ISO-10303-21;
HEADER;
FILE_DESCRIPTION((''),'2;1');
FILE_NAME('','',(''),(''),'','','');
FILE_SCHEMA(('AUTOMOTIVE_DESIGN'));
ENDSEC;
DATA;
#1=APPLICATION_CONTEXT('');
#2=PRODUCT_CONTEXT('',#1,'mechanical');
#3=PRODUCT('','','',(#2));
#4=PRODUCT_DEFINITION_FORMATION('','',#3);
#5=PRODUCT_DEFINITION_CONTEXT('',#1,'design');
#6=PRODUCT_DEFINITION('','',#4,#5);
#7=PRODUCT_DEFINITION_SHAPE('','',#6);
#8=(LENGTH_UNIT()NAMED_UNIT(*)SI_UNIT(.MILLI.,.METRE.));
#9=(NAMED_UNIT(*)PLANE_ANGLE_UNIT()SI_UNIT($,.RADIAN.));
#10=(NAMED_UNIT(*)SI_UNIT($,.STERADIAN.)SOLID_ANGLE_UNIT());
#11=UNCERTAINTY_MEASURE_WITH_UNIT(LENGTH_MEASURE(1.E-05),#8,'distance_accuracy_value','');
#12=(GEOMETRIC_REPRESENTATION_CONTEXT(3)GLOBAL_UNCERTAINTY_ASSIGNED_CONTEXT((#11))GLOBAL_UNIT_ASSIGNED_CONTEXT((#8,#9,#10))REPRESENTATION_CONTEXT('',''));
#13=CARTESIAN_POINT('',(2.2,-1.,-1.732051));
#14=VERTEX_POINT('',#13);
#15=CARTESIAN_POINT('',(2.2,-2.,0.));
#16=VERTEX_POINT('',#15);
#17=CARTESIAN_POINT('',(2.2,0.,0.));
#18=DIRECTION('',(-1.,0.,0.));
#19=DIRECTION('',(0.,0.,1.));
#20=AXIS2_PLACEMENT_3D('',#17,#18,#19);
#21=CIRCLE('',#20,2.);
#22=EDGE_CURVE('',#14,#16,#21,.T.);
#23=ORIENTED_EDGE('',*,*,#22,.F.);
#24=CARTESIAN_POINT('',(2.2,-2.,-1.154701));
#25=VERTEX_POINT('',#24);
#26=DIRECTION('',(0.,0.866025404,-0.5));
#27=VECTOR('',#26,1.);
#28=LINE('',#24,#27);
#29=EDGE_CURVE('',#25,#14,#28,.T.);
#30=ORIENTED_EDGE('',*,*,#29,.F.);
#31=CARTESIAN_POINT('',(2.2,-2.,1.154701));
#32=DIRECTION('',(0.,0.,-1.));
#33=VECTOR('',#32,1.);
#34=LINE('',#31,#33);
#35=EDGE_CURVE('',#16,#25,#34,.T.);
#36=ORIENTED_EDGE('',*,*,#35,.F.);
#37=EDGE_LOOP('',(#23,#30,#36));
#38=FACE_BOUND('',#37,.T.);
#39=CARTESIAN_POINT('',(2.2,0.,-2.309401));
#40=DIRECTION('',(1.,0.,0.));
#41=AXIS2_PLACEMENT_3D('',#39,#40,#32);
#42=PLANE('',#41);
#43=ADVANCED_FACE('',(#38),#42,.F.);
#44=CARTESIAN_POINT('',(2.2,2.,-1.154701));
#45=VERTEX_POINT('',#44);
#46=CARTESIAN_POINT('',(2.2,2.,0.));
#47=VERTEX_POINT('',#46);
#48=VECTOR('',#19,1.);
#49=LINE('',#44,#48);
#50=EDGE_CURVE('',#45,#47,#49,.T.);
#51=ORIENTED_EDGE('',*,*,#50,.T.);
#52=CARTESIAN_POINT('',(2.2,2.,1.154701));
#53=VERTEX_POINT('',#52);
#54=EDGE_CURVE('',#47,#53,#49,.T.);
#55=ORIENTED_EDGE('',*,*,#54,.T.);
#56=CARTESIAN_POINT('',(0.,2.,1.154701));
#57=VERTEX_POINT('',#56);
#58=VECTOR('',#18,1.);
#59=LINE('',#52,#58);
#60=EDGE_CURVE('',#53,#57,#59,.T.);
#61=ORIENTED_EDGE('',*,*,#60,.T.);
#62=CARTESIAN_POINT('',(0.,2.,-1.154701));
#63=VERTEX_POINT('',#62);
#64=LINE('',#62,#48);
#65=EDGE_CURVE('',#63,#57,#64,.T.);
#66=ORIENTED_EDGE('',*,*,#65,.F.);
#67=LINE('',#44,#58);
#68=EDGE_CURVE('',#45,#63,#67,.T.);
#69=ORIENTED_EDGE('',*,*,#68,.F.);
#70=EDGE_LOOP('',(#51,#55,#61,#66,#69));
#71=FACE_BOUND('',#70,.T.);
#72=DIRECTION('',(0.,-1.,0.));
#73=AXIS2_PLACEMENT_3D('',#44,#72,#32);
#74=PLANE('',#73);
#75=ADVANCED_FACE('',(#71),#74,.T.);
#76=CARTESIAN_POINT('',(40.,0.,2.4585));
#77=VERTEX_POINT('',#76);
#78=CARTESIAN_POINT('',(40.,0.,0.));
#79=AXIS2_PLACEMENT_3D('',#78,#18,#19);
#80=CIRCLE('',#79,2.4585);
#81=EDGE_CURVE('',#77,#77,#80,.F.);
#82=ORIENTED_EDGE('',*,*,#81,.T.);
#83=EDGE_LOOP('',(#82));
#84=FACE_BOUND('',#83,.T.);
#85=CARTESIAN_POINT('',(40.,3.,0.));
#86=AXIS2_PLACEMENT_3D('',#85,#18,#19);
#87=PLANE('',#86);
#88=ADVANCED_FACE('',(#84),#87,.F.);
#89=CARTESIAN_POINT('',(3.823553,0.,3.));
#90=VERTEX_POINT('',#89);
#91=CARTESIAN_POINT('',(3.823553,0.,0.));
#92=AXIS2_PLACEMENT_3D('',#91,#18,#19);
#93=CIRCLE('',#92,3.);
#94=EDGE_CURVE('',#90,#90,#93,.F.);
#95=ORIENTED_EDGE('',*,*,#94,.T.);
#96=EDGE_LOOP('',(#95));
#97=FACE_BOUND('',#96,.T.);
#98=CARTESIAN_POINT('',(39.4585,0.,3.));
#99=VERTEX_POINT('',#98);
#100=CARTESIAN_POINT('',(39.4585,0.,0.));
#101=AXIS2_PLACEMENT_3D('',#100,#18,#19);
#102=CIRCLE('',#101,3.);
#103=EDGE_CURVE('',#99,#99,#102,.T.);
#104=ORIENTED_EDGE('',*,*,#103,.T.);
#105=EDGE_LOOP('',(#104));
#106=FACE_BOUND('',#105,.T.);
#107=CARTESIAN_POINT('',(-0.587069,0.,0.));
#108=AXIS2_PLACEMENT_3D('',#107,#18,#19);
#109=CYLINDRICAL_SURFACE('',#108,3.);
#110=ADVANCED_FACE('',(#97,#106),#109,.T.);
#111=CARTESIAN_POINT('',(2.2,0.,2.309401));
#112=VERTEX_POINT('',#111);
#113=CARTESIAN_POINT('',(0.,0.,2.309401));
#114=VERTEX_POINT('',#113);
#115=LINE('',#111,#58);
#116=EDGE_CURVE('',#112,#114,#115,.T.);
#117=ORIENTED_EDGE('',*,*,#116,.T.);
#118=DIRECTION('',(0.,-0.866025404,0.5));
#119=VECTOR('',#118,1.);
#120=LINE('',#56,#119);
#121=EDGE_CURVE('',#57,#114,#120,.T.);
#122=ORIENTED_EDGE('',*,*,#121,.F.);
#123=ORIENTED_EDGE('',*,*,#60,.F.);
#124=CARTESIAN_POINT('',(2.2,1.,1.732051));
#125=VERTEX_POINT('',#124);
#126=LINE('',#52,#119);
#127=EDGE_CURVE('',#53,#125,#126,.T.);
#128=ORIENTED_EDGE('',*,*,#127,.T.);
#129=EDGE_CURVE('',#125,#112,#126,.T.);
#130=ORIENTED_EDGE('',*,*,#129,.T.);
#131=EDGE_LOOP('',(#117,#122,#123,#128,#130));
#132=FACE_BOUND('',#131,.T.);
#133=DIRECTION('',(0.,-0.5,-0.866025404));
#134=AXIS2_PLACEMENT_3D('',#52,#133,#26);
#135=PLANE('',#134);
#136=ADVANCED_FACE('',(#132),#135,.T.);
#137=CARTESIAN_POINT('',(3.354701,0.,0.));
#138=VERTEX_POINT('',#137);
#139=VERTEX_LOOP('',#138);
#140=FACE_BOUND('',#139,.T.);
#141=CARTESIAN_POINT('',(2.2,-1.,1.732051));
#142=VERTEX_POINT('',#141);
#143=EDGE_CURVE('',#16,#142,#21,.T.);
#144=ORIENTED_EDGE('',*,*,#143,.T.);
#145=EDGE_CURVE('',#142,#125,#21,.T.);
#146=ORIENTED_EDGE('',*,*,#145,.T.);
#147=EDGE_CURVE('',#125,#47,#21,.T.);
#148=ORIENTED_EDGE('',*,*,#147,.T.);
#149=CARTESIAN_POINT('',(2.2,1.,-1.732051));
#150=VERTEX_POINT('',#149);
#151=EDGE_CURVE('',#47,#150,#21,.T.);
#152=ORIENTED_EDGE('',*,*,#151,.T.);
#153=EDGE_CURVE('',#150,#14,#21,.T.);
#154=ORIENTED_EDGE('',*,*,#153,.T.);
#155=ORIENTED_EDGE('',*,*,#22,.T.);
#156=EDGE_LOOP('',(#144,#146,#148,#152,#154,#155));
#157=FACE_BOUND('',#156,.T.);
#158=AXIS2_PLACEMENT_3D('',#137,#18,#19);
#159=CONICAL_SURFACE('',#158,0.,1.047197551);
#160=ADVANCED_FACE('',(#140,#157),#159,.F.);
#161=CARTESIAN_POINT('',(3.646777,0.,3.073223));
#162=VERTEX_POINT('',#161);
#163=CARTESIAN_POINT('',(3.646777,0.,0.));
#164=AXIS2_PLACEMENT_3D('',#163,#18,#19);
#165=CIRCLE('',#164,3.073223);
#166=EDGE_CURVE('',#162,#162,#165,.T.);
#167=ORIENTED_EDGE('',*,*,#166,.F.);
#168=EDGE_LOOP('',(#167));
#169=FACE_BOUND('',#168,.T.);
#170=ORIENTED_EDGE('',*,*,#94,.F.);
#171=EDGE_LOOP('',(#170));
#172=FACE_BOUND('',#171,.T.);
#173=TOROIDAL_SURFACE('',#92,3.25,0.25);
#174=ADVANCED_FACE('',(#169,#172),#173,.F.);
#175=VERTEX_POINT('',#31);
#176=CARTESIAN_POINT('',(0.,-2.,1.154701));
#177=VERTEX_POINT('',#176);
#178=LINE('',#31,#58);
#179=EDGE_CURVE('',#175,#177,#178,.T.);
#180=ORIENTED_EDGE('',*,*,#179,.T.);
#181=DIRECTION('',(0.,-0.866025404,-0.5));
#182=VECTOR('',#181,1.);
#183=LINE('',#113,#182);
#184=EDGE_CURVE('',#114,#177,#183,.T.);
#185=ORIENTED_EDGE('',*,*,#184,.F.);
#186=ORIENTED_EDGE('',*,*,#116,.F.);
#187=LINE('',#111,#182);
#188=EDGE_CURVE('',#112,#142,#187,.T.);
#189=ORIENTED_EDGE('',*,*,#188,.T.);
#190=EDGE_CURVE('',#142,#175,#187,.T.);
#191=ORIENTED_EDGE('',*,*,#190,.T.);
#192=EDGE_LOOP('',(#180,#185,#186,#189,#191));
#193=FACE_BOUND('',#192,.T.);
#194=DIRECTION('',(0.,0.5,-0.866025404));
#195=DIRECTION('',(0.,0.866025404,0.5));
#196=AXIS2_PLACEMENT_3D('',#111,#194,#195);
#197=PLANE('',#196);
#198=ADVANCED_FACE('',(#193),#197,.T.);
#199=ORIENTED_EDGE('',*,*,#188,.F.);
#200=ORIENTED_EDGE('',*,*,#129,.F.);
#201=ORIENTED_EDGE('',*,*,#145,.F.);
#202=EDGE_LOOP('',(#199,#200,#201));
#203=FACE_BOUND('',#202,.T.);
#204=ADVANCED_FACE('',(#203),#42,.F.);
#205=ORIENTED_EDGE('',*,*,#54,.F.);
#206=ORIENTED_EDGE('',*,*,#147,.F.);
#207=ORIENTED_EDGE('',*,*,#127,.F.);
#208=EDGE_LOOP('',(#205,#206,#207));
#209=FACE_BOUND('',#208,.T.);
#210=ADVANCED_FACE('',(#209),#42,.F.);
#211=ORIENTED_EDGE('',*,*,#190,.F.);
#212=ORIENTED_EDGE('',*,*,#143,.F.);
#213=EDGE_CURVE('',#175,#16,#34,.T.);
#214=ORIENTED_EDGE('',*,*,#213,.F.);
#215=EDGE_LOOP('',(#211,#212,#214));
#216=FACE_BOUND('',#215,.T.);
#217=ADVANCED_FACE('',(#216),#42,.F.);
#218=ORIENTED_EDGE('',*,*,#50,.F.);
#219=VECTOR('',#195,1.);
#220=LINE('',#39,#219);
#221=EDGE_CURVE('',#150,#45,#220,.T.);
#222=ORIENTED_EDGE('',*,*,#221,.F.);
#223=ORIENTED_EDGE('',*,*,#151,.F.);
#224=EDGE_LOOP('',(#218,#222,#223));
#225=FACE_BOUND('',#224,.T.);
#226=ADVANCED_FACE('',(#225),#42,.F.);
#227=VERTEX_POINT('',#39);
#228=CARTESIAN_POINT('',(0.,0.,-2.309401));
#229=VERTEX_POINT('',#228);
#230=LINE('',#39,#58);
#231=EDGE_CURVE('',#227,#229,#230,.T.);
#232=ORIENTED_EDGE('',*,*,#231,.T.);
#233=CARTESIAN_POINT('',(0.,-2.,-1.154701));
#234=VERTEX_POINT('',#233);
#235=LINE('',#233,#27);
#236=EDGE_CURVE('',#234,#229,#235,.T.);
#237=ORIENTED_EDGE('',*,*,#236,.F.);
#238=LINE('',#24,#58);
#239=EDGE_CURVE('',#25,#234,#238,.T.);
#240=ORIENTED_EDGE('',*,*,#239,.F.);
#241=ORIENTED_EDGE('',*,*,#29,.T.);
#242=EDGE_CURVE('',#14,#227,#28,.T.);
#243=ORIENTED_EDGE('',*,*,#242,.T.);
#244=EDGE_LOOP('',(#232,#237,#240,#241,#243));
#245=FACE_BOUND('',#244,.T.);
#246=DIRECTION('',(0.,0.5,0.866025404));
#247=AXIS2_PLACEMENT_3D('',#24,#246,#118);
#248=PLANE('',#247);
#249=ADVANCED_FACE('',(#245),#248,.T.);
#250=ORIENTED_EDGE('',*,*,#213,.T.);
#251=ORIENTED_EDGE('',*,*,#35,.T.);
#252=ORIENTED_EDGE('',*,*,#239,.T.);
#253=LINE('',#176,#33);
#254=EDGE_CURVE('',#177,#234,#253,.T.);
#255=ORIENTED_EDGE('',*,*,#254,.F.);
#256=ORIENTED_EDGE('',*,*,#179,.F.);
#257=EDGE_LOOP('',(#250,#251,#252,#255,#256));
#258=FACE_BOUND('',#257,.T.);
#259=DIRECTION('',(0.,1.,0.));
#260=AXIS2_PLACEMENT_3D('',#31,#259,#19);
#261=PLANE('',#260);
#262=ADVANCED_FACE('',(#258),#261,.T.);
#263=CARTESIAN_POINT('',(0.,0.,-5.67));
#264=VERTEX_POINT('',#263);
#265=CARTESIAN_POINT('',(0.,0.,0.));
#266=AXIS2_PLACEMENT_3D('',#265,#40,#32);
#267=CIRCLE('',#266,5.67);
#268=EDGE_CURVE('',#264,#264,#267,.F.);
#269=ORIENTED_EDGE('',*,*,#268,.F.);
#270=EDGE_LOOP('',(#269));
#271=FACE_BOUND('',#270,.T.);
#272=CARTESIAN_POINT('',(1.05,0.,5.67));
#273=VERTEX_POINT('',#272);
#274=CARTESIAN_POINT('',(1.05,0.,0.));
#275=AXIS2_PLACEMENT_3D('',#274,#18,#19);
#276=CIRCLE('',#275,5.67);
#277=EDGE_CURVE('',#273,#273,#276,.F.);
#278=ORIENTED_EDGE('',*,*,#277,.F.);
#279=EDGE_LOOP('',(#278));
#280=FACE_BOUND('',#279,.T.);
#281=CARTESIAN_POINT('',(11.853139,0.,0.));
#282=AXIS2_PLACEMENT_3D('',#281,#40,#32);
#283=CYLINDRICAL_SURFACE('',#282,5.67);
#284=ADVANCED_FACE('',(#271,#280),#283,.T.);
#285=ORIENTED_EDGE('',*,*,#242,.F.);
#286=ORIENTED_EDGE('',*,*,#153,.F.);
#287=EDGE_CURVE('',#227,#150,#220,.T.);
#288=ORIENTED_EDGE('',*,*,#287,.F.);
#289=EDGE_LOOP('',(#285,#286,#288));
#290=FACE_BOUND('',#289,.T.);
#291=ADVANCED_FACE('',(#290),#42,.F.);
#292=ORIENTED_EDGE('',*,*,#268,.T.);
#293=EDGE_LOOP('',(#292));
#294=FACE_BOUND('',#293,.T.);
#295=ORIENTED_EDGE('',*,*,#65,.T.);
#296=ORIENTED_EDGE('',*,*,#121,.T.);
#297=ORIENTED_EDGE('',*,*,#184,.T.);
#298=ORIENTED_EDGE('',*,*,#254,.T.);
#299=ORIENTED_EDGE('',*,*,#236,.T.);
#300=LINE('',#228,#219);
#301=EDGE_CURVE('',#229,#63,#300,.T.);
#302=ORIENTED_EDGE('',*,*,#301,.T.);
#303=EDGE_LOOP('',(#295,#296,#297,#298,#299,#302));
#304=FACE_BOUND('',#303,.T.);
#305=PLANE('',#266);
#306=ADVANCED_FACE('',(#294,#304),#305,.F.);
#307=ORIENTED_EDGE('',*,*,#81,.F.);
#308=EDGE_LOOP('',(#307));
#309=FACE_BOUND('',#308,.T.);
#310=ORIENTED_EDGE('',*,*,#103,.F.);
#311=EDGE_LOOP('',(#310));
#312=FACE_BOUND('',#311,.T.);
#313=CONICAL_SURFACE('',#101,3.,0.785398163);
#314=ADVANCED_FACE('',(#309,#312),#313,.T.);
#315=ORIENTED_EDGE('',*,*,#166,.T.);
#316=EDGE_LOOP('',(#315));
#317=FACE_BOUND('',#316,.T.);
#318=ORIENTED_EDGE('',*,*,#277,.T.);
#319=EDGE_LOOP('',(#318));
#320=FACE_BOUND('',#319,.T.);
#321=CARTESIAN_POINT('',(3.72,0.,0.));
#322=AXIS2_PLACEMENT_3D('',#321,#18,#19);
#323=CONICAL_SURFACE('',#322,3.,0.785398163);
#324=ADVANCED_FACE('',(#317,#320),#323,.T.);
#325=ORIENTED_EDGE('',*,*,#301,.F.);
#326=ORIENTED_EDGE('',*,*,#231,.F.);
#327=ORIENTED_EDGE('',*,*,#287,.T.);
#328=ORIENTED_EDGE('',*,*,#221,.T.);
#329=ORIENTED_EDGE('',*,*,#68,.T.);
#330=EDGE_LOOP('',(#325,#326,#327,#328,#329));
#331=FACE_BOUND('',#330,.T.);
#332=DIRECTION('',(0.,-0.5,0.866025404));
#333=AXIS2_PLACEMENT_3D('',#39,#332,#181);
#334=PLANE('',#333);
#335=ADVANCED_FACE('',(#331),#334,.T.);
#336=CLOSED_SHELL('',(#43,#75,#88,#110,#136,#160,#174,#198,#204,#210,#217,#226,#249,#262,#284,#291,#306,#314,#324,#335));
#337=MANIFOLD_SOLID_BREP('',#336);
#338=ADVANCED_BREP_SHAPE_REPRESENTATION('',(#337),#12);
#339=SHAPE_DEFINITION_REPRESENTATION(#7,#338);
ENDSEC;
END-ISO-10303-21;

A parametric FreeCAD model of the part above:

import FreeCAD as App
import Part
import Sketcher

V = App.Vector
Q = App.Units.Quantity


def edges_at(feature, points):
    """Names of the edges that pass closest to the given points."""
    edges = feature.Shape.Edges
    near = lambda p: min(range(len(edges)), key=lambda i: edges[i].distToShape(Part.Vertex(*p))[0])
    return sorted({f"Edge{near(p) + 1}" for p in points})

doc = App.newDocument("Part")
params = doc.addObject("Spreadsheet::Sheet", "Params")
for row, (alias, value) in enumerate([
    ("sketch1_width", "40 mm"),
    ("sketch1_height", "3 mm"),
    ("sketch1_width2", "36.28 mm"),
    ("revolution_angle", "360 deg"),
    ("pocket1_length", "2.2 mm"),
    ("sketch3_height", "2 mm"),
    ("groove_angle", "360 deg"),
    ("fillet_radius", "0.25 mm"),
    ("chamfer_size", "0.5415 mm"),
    ("sketch4_width", "5 mm"),
    ("groove2_angle", "360 deg"),
], start=1):
    params.set(f"A{row}", alias)
    params.set(f"B{row}", "=" + value)
    params.setAlias(f"B{row}", alias)

body = doc.addObject("PartDesign::Body", "Body")

# Sketch on XY plane
sketch1 = doc.addObject("Sketcher::SketchObject", "Sketch")
body.addObject(sketch1)
sketch1.AttachmentSupport = (doc.XY_Plane, [""])
sketch1.MapMode = "FlatFace"
sketch1.addGeometry(Part.LineSegment(V(0, 6.7, 0), V(0, 0, 0)), False)
sketch1.addGeometry(Part.LineSegment(V(0, 0, 0), V(40, 0, 0)), False)
sketch1.addGeometry(Part.LineSegment(V(40, 0, 0), V(40, 3, 0)), False)
sketch1.addGeometry(Part.LineSegment(V(40, 3, 0), V(3.7, 3, 0)), False)
sketch1.addGeometry(Part.LineSegment(V(3.7, 3, 0), V(0, 6.7, 0)), False)
sketch1.addConstraint(Sketcher.Constraint("Coincident", 0, 2, 1, 1))
sketch1.addConstraint(Sketcher.Constraint("Coincident", 1, 2, 2, 1))
sketch1.addConstraint(Sketcher.Constraint("Coincident", 2, 2, 3, 1))
sketch1.addConstraint(Sketcher.Constraint("Coincident", 3, 2, 4, 1))
sketch1.addConstraint(Sketcher.Constraint("Coincident", 4, 2, 0, 1))
sketch1.addConstraint(Sketcher.Constraint("Vertical", 0))
sketch1.addConstraint(Sketcher.Constraint("Horizontal", 1))
sketch1.addConstraint(Sketcher.Constraint("Vertical", 2))
sketch1.addConstraint(Sketcher.Constraint("Horizontal", 3))
sketch1.addConstraint(Sketcher.Constraint("Coincident", 0, 2, -1, 1))
sketch1.addConstraint(Sketcher.Constraint("DistanceX", 1, 1, 1, 2, 40.0))
sketch1.addConstraint(Sketcher.Constraint("DistanceY", 2, 1, 2, 2, 3.0))
sketch1.addConstraint(Sketcher.Constraint("Angle", 4, Q("135 deg")))
sketch1.addConstraint(Sketcher.Constraint("DistanceX", 3, 2, 3, 1, 36.28))
sketch1.setExpression("Constraints[10]", "Params.sketch1_width")
sketch1.setExpression("Constraints[11]", "Params.sketch1_height")
sketch1.setExpression("Constraints[13]", "Params.sketch1_width2")
revolution = doc.addObject("PartDesign::Revolution", "Revolution")
body.addObject(revolution)
revolution.Profile = sketch1
revolution.ReferenceAxis = (sketch1, ["H_Axis"])
revolution.setExpression("Angle", "Params.revolution_angle")

# Sketch on YZ plane
sketch2 = doc.addObject("Sketcher::SketchObject", "Sketch001")
body.addObject(sketch2)
sketch2.AttachmentSupport = (doc.YZ_Plane, [""])
sketch2.MapMode = "FlatFace"
sketch2.addGeometry(Part.LineSegment(V(0, -2.3, 0), V(2, -1.2, 0)), False)
sketch2.addGeometry(Part.LineSegment(V(2, -1.2, 0), V(2, 1.2, 0)), False)
sketch2.addGeometry(Part.LineSegment(V(2, 1.2, 0), V(0, 2.3, 0)), False)
sketch2.addGeometry(Part.LineSegment(V(0, 2.3, 0), V(-2, 1.2, 0)), False)
sketch2.addGeometry(Part.LineSegment(V(-2, 1.2, 0), V(-2, -1.2, 0)), False)
sketch2.addGeometry(Part.LineSegment(V(-2, -1.2, 0), V(0, -2.3, 0)), False)
sketch2.addConstraint(Sketcher.Constraint("Coincident", 0, 2, 1, 1))
sketch2.addConstraint(Sketcher.Constraint("Coincident", 1, 2, 2, 1))
sketch2.addConstraint(Sketcher.Constraint("Coincident", 2, 2, 3, 1))
sketch2.addConstraint(Sketcher.Constraint("Coincident", 3, 2, 4, 1))
sketch2.addConstraint(Sketcher.Constraint("Coincident", 4, 2, 5, 1))
sketch2.addConstraint(Sketcher.Constraint("Coincident", 5, 2, 0, 1))
sketch2.addConstraint(Sketcher.Constraint("Vertical", 1))
sketch2.addConstraint(Sketcher.Constraint("Vertical", 4))
sketch2.addConstraint(Sketcher.Constraint("Symmetric", 0, 2, 3, 2, -1, 1))
sketch2.addConstraint(Sketcher.Constraint("Symmetric", 2, 2, 5, 2, -1, 1))
sketch2.addConstraint(Sketcher.Constraint("PointOnObject", 2, 2, -2))
sketch2.addConstraint(Sketcher.Constraint("Parallel", 2, 5))
sketch2.addConstraint(Sketcher.Constraint("Horizontal", 1, 2, 3, 2))
sketch2.addConstraint(Sketcher.Constraint("Angle", 0, Q("30 deg")))
sketch2.addConstraint(Sketcher.Constraint("DistanceX", -1, 1, 0, 2, 2.0))
sketch2.addConstraint(Sketcher.Constraint("DistanceY", 1, 1, 1, 2, 2.309401))
pocket1 = doc.addObject("PartDesign::Pocket", "Pocket")
body.addObject(pocket1)
pocket1.Profile = sketch2
pocket1.setExpression("Length", "Params.pocket1_length")
pocket1.Reversed = True

# Sketch on XY plane
sketch3 = doc.addObject("Sketcher::SketchObject", "Sketch002")
body.addObject(sketch3)
sketch3.AttachmentSupport = (doc.XY_Plane, [""])
sketch3.MapMode = "FlatFace"
sketch3.addGeometry(Part.LineSegment(V(3.4, 0, 0), V(2.2, 2, 0)), False)
sketch3.addGeometry(Part.LineSegment(V(2.2, 2, 0), V(2.2, 0, 0)), False)
sketch3.addGeometry(Part.LineSegment(V(2.2, 0, 0), V(3.4, 0, 0)), False)
sketch3.addConstraint(Sketcher.Constraint("Coincident", 0, 2, 1, 1))
sketch3.addConstraint(Sketcher.Constraint("Coincident", 1, 2, 2, 1))
sketch3.addConstraint(Sketcher.Constraint("Coincident", 2, 2, 0, 1))
sketch3.addConstraint(Sketcher.Constraint("Vertical", 1))
sketch3.addConstraint(Sketcher.Constraint("Horizontal", 2))
sketch3.addConstraint(Sketcher.Constraint("PointOnObject", 1, 2, -1))
sketch3.addConstraint(Sketcher.Constraint("DistanceY", 1, 2, 1, 1, 2.0))
sketch3.addConstraint(Sketcher.Constraint("Angle", 0, Q("120 deg")))
sketch3.addConstraint(Sketcher.Constraint("DistanceX", -1, 1, 0, 2, 2.2))
sketch3.setExpression("Constraints[6]", "Params.sketch3_height")
groove = doc.addObject("PartDesign::Groove", "Groove")
body.addObject(groove)
groove.Profile = sketch3
groove.ReferenceAxis = (sketch3, ["H_Axis"])
groove.setExpression("Angle", "Params.groove_angle")
doc.recompute()

fillet = doc.addObject("PartDesign::Fillet", "Fillet")
body.addObject(fillet)
fillet.Base = (groove, edges_at(groove, [(3.72, 0, -3)]))
fillet.setExpression("Radius", "Params.fillet_radius")
doc.recompute()

chamfer = doc.addObject("PartDesign::Chamfer", "Chamfer")
body.addObject(chamfer)
chamfer.Base = (fillet, edges_at(fillet, [(40, 0, -3)]))
chamfer.setExpression("Size", "Params.chamfer_size")

# Sketch on XZ plane
sketch4 = doc.addObject("Sketcher::SketchObject", "Sketch003")
body.addObject(sketch4)
sketch4.AttachmentSupport = (doc.XZ_Plane, [""])
sketch4.MapMode = "FlatFace"
sketch4.addGeometry(Part.LineSegment(V(-2, -11, 0), V(-2, -6, 0)), False)
sketch4.addGeometry(Part.LineSegment(V(-2, -6, 0), V(3, -6, 0)), False)
sketch4.addGeometry(Part.LineSegment(V(3, -6, 0), V(3, -11, 0)), False)
sketch4.addGeometry(Part.LineSegment(V(3, -11, 0), V(-2, -11, 0)), False)
sketch4.addConstraint(Sketcher.Constraint("Coincident", 0, 2, 1, 1))
sketch4.addConstraint(Sketcher.Constraint("Coincident", 1, 2, 2, 1))
sketch4.addConstraint(Sketcher.Constraint("Coincident", 2, 2, 3, 1))
sketch4.addConstraint(Sketcher.Constraint("Coincident", 3, 2, 0, 1))
sketch4.addConstraint(Sketcher.Constraint("Vertical", 0))
sketch4.addConstraint(Sketcher.Constraint("Horizontal", 1))
sketch4.addConstraint(Sketcher.Constraint("Vertical", 2))
sketch4.addConstraint(Sketcher.Constraint("Horizontal", 3))
sketch4.addConstraint(Sketcher.Constraint("Equal", 3, 0))
sketch4.addConstraint(Sketcher.Constraint("DistanceX", 1, 1, 1, 2, 5.0))
sketch4.addConstraint(Sketcher.Constraint("DistanceX", 0, 2, -1, 1, 2.0))
sketch4.addConstraint(Sketcher.Constraint("DistanceY", 0, 2, -1, 1, 5.67))
sketch4.setExpression("Constraints[9]", "Params.sketch4_width")
groove2 = doc.addObject("PartDesign::Groove", "Groove001")
body.addObject(groove2)
groove2.Profile = sketch4
groove2.ReferenceAxis = (sketch4, ["H_Axis"])
groove2.setExpression("Angle", "Params.groove2_angle")

doc.recompute()
